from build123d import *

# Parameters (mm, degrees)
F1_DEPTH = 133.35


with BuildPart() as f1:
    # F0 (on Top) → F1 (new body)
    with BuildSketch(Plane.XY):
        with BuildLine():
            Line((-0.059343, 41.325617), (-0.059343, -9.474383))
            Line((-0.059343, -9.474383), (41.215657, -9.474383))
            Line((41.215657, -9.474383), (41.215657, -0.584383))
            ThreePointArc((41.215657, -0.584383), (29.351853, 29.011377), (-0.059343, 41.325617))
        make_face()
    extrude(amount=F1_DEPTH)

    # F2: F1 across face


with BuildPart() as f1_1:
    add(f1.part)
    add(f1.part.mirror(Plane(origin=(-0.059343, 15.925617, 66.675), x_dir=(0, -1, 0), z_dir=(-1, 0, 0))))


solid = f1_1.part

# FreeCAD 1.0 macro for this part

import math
import FreeCAD as App
import Part
import Sketcher
from FreeCAD import Vector
Q = App.Units.Quantity

doc = App.newDocument("Part")
params = doc.addObject("Spreadsheet::Sheet", "Params")
for row, (alias, value) in enumerate([
    ("sketch1_height", "2 in"),
    ("sketch1_height2", "0.35 in"),
    ("sketch1_width", "1.625 in"),
    ("pad1_length", "5.25 in"),
], start=1):
    params.set(f"A{row}", alias)
    params.set(f"B{row}", "=" + value)
    params.setAlias(f"B{row}", alias)

body = doc.addObject("PartDesign::Body", "Body")

# Sketch on XY plane
sketch1 = body.newObject("Sketcher::SketchObject", "Sketch")
sketch1.AttachmentSupport = (doc.getObject("XY_Plane"), [""])
sketch1.MapMode = "FlatFace"
sketch1.addGeometry([
    Part.LineSegment(Vector(0, 41, 0), Vector(0, -9, 0)),
    Part.LineSegment(Vector(0, -9, 0), Vector(41, -9, 0)),
    Part.LineSegment(Vector(41, -9, 0), Vector(41, -1, 0)),
    Part.ArcOfCircle(Part.Circle(Vector(0, 0, 0), Vector(0, 0, 1), 41), math.radians(-1), math.radians(90)),
], False)
sketch1.addConstraint([
    Sketcher.Constraint("Coincident", 0, 2, 1, 1),
    Sketcher.Constraint("Coincident", 1, 2, 2, 1),
    Sketcher.Constraint("Coincident", 2, 2, 3, 1),
    Sketcher.Constraint("Coincident", 3, 2, 0, 1),
    Sketcher.Constraint("Vertical", 0),
    Sketcher.Constraint("Horizontal", 1),
    Sketcher.Constraint("Vertical", 2),
    Sketcher.Constraint("Vertical", 3, 3, 0, 2),
    Sketcher.Constraint("DistanceY", 0, 2, 0, 1, Q("2 in")),
    Sketcher.Constraint("DistanceY", 2, 1, 2, 2, Q("0.35 in")),
    Sketcher.Constraint("DistanceX", 1, 1, 1, 2, Q("1.625 in")),
    Sketcher.Constraint("DistanceX", 3, 3, -1, 1, 0.059344),
    Sketcher.Constraint("DistanceY", -1, 1, 3, 3, 0.045805),
])
sketch1.setExpression("Constraints[8]", "Params.sketch1_height")
sketch1.setExpression("Constraints[9]", "Params.sketch1_height2")
sketch1.setExpression("Constraints[10]", "Params.sketch1_width")
pad1 = body.newObject("PartDesign::Pad", "Pad")
pad1.Profile = sketch1
pad1.setExpression("Length", "Params.pad1_length")
body2 = doc.addObject("PartDesign::Body", "Body001")
doc.recompute()

body2.BaseFeature = body
doc.recompute()

mirroring = doc.addObject("Part::Mirroring", "Mirroring")
mirroring.Source = body
mirroring.Base = Vector(-0.059343, 15.925617, 66.675)
mirroring.Normal = Vector(-1, 0, 0)
body3 = doc.addObject("PartDesign::Body", "Body002")
body3.BaseFeature = mirroring
boolean = body2.newObject("PartDesign::Boolean", "Boolean")
boolean.Type = "Fuse"
boolean.addObjects([body3])
doc.recompute()
mirroring.Visibility = False

doc.recompute()
